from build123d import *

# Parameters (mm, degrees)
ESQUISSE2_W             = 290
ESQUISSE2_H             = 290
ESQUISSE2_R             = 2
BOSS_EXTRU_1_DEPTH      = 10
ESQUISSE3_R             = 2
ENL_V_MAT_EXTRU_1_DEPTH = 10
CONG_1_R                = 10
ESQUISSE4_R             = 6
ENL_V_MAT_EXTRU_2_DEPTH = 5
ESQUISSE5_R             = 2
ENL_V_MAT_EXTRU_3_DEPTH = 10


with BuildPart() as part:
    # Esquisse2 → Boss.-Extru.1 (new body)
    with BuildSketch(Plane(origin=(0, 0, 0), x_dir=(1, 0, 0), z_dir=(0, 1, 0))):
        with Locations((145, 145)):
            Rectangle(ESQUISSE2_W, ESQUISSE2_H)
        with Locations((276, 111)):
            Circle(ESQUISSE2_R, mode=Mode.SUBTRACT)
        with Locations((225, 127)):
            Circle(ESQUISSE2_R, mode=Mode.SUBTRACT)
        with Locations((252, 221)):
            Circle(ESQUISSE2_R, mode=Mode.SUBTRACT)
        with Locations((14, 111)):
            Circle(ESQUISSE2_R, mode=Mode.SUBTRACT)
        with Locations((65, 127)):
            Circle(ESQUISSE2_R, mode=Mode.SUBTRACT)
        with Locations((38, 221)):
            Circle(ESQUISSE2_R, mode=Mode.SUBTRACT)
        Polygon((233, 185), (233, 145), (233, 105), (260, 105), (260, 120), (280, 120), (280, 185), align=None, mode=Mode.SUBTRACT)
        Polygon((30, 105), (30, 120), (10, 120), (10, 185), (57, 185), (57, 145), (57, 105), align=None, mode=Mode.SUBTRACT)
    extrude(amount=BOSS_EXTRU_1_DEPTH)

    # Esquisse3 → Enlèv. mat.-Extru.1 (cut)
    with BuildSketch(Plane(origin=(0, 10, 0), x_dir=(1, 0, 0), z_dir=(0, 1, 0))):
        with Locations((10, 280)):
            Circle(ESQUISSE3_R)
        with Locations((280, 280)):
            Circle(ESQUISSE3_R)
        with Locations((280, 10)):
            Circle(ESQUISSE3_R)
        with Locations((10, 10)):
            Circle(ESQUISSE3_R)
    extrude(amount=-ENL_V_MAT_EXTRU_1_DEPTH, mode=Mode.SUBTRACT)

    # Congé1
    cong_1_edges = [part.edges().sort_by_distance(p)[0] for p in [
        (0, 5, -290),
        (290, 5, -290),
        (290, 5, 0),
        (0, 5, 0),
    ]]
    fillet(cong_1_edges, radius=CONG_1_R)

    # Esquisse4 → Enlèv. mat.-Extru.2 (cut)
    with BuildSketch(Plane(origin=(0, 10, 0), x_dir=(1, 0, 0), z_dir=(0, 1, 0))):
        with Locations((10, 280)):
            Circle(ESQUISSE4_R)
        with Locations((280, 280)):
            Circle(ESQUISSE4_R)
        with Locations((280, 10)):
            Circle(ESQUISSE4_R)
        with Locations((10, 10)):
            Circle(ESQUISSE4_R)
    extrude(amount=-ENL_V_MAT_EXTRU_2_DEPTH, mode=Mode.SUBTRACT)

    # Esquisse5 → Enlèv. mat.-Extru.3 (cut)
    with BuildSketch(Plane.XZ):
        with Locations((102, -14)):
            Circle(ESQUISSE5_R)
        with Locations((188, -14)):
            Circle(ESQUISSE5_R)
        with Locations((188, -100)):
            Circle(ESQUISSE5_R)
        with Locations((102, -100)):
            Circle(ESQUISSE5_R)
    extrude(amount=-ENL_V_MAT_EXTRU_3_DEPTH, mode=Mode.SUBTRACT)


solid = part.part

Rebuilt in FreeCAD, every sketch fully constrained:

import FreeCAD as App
import Part
import Sketcher

V = App.Vector


def edges_at(feature, points):
    """Names of the edges that pass closest to the given points."""
    edges = feature.Shape.Edges
    near = lambda p: min(range(len(edges)), key=lambda i: edges[i].distToShape(Part.Vertex(*p))[0])
    return sorted({f"Edge{near(p) + 1}" for p in points})

doc = App.newDocument("Part")
body = doc.addObject("PartDesign::Body", "Body")

# Sketch on XZ plane
sketch1 = doc.addObject("Sketcher::SketchObject", "Sketch")
body.addObject(sketch1)
sketch1.AttachmentSupport = (doc.XZ_Plane, [""])
sketch1.MapMode = "FlatFace"
sketch1.addGeometry(Part.LineSegment(V(0, -290, 0), V(0, 0, 0)), False)
sketch1.addGeometry(Part.LineSegment(V(0, 0, 0), V(290, 0, 0)), False)
sketch1.addGeometry(Part.LineSegment(V(290, 0, 0), V(290, -290, 0)), False)
sketch1.addGeometry(Part.LineSegment(V(290, -290, 0), V(0, -290, 0)), False)
sketch1.addGeometry(Part.Circle(V(14, -111, 0), V(0, 0, 1), 2), False)
sketch1.addGeometry(Part.Circle(V(65, -127, 0), V(0, 0, 1), 2), False)
sketch1.addGeometry(Part.LineSegment(V(57, -105, 0), V(30, -105, 0)), False)
sketch1.addGeometry(Part.LineSegment(V(30, -105, 0), V(30, -120, 0)), False)
sketch1.addGeometry(Part.LineSegment(V(30, -120, 0), V(10, -120, 0)), False)
sketch1.addGeometry(Part.LineSegment(V(10, -120, 0), V(10, -185, 0)), False)
sketch1.addGeometry(Part.LineSegment(V(10, -185, 0), V(57, -185, 0)), False)
sketch1.addGeometry(Part.LineSegment(V(57, -185, 0), V(57, -105, 0)), False)
sketch1.addGeometry(Part.Circle(V(276, -111, 0), V(0, 0, 1), 2), False)
sketch1.addGeometry(Part.Circle(V(225, -127, 0), V(0, 0, 1), 2), False)
sketch1.addGeometry(Part.LineSegment(V(233, -105, 0), V(233, -185, 0)), False)
sketch1.addGeometry(Part.LineSegment(V(233, -185, 0), V(280, -185, 0)), False)
sketch1.addGeometry(Part.LineSegment(V(280, -185, 0), V(280, -120, 0)), False)
sketch1.addGeometry(Part.LineSegment(V(280, -120, 0), V(260, -120, 0)), False)
sketch1.addGeometry(Part.LineSegment(V(260, -120, 0), V(260, -105, 0)), False)
sketch1.addGeometry(Part.LineSegment(V(260, -105, 0), V(233, -105, 0)), False)
sketch1.addGeometry(Part.Circle(V(38, -221, 0), V(0, 0, 1), 2), False)
sketch1.addGeometry(Part.Circle(V(252, -221, 0), V(0, 0, 1), 2), False)
sketch1.addConstraint(Sketcher.Constraint("Coincident", 0, 2, 1, 1))
sketch1.addConstraint(Sketcher.Constraint("Coincident", 1, 2, 2, 1))
sketch1.addConstraint(Sketcher.Constraint("Coincident", 2, 2, 3, 1))
sketch1.addConstraint(Sketcher.Constraint("Coincident", 3, 2, 0, 1))
sketch1.addConstraint(Sketcher.Constraint("Coincident", 6, 2, 7, 1))
sketch1.addConstraint(Sketcher.Constraint("Coincident", 7, 2, 8, 1))
sketch1.addConstraint(Sketcher.Constraint("Coincident", 8, 2, 9, 1))
sketch1.addConstraint(Sketcher.Constraint("Coincident", 9, 2, 10, 1))
sketch1.addConstraint(Sketcher.Constraint("Coincident", 10, 2, 11, 1))
sketch1.addConstraint(Sketcher.Constraint("Coincident", 11, 2, 6, 1))
sketch1.addConstraint(Sketcher.Constraint("Coincident", 14, 2, 15, 1))
sketch1.addConstraint(Sketcher.Constraint("Coincident", 15, 2, 16, 1))
sketch1.addConstraint(Sketcher.Constraint("Coincident", 16, 2, 17, 1))
sketch1.addConstraint(Sketcher.Constraint("Coincident", 17, 2, 18, 1))
sketch1.addConstraint(Sketcher.Constraint("Coincident", 18, 2, 19, 1))
sketch1.addConstraint(Sketcher.Constraint("Coincident", 19, 2, 14, 1))
sketch1.addConstraint(Sketcher.Constraint("Vertical", 0))
sketch1.addConstraint(Sketcher.Constraint("Horizontal", 1))
sketch1.addConstraint(Sketcher.Constraint("Vertical", 2))
sketch1.addConstraint(Sketcher.Constraint("Horizontal", 3))
sketch1.addConstraint(Sketcher.Constraint("Horizontal", 6))
sketch1.addConstraint(Sketcher.Constraint("Vertical", 7))
sketch1.addConstraint(Sketcher.Constraint("Horizontal", 8))
sketch1.addConstraint(Sketcher.Constraint("Vertical", 9))
sketch1.addConstraint(Sketcher.Constraint("Horizontal", 10))
sketch1.addConstraint(Sketcher.Constraint("Vertical", 11))
sketch1.addConstraint(Sketcher.Constraint("Vertical", 14))
sketch1.addConstraint(Sketcher.Constraint("Horizontal", 15))
sketch1.addConstraint(Sketcher.Constraint("Vertical", 16))
sketch1.addConstraint(Sketcher.Constraint("Horizontal", 17))
sketch1.addConstraint(Sketcher.Constraint("Vertical", 18))
sketch1.addConstraint(Sketcher.Constraint("Horizontal", 19))
sketch1.addConstraint(Sketcher.Constraint("Coincident", 0, 2, -1, 1))
sketch1.addConstraint(Sketcher.Constraint("Equal", 4, 5))
sketch1.addConstraint(Sketcher.Constraint("Equal", 5, 12))
sketch1.addConstraint(Sketcher.Constraint("Equal", 12, 13))
sketch1.addConstraint(Sketcher.Constraint("Equal", 13, 20))
sketch1.addConstraint(Sketcher.Constraint("Equal", 20, 21))
sketch1.addConstraint(Sketcher.Constraint("Horizontal", 4, 3, 12, 3))
sketch1.addConstraint(Sketcher.Constraint("Horizontal", 5, 3, 13, 3))
sketch1.addConstraint(Sketcher.Constraint("Horizontal", 20, 3, 21, 3))
sketch1.addConstraint(Sketcher.Constraint("Horizontal", 10, 2, 14, 2))
sketch1.addConstraint(Sketcher.Constraint("Horizontal", 8, 2, 16, 2))
sketch1.addConstraint(Sketcher.Constraint("Horizontal", 11, 2, 18, 2))
sketch1.addConstraint(Sketcher.Constraint("Equal", 10, 15))
sketch1.addConstraint(Sketcher.Constraint("Equal", 8, 17))
sketch1.addConstraint(Sketcher.Constraint("Equal", 3, 0))
sketch1.addConstraint(Sketcher.Constraint("Diameter", 4, 4.0))
sketch1.addConstraint(Sketcher.Constraint("DistanceX", 1, 1, 1, 2, 290.0))
sketch1.addConstraint(Sketcher.Constraint("DistanceX", 6, 2, 6, 1, 27.0))
sketch1.addConstraint(Sketcher.Constraint("DistanceX", 8, 2, 8, 1, 20.0))
sketch1.addConstraint(Sketcher.Constraint("DistanceY", 7, 2, 7, 1, 15.0))
sketch1.addConstraint(Sketcher.Constraint("DistanceY", 9, 2, 9, 1, 65.0))
sketch1.addConstraint(Sketcher.Constraint("DistanceX", -1, 1, 4, 3, 14.0))
sketch1.addConstraint(Sketcher.Constraint("DistanceY", 4, 3, -1, 1, 111.0))
sketch1.addConstraint(Sketcher.Constraint("DistanceX", -1, 1, 5, 3, 65.0))
sketch1.addConstraint(Sketcher.Constraint("DistanceY", 5, 3, -1, 1, 127.0))
sketch1.addConstraint(Sketcher.Constraint("DistanceX", -1, 1, 12, 3, 276.0))
sketch1.addConstraint(Sketcher.Constraint("DistanceX", -1, 1, 13, 3, 225.0))
sketch1.addConstraint(Sketcher.Constraint("DistanceX", -1, 1, 20, 3, 38.0))
sketch1.addConstraint(Sketcher.Constraint("DistanceY", 20, 3, -1, 1, 221.0))
sketch1.addConstraint(Sketcher.Constraint("DistanceX", -1, 1, 21, 3, 252.0))
sketch1.addConstraint(Sketcher.Constraint("DistanceX", -1, 1, 6, 2, 30.0))
sketch1.addConstraint(Sketcher.Constraint("DistanceY", 6, 2, -1, 1, 105.0))
sketch1.addConstraint(Sketcher.Constraint("DistanceX", -1, 1, 14, 2, 233.0))
pad1 = doc.addObject("PartDesign::Pad", "Pad")
body.addObject(pad1)
pad1.Profile = sketch1
pad1.Length = 10
pad1.Reversed = True

# Sketch on XZ plane
sketch2 = doc.addObject("Sketcher::SketchObject", "Sketch001")
body.addObject(sketch2)
sketch2.AttachmentSupport = (doc.XZ_Plane, [""])
sketch2.MapMode = "FlatFace"
sketch2.AttachmentOffset = App.Placement(V(0, 0, -10), App.Rotation())
sketch2.addGeometry(Part.Circle(V(10, -280, 0), V(0, 0, 1), 2), False)
sketch2.addGeometry(Part.Circle(V(280, -280, 0), V(0, 0, 1), 2), False)
sketch2.addGeometry(Part.Circle(V(280, -10, 0), V(0, 0, 1), 2), False)
sketch2.addGeometry(Part.Circle(V(10, -10, 0), V(0, 0, 1), 2), False)
sketch2.addConstraint(Sketcher.Constraint("Equal", 0, 1))
sketch2.addConstraint(Sketcher.Constraint("Equal", 1, 2))
sketch2.addConstraint(Sketcher.Constraint("Equal", 2, 3))
sketch2.addConstraint(Sketcher.Constraint("Horizontal", 0, 3, 1, 3))
sketch2.addConstraint(Sketcher.Constraint("Horizontal", 2, 3, 3, 3))
sketch2.addConstraint(Sketcher.Constraint("Vertical", 1, 3, 2, 3))
sketch2.addConstraint(Sketcher.Constraint("Vertical", 0, 3, 3, 3))
sketch2.addConstraint(Sketcher.Constraint("Diameter", 0, 4.0))
sketch2.addConstraint(Sketcher.Constraint("DistanceX", -1, 1, 0, 3, 10.0))
sketch2.addConstraint(Sketcher.Constraint("DistanceY", 0, 3, -1, 1, 280.0))
sketch2.addConstraint(Sketcher.Constraint("DistanceX", -1, 1, 1, 3, 280.0))
sketch2.addConstraint(Sketcher.Constraint("DistanceY", 2, 3, -1, 1, 10.0))
pocket1 = doc.addObject("PartDesign::Pocket", "Pocket")
body.addObject(pocket1)
pocket1.Profile = sketch2
pocket1.Length = 10
pocket1.Reversed = True
doc.recompute()

fillet = doc.addObject("PartDesign::Fillet", "Fillet")
body.addObject(fillet)
fillet.Base = (pocket1, edges_at(pocket1, [
    (0, 5, -290),
    (290, 5, -290),
    (290, 5, 0),
    (0, 5, 0),
]))
fillet.Radius = 10

# Sketch on XZ plane
sketch3 = doc.addObject("Sketcher::SketchObject", "Sketch002")
body.addObject(sketch3)
sketch3.AttachmentSupport = (doc.XZ_Plane, [""])
sketch3.MapMode = "FlatFace"
sketch3.AttachmentOffset = App.Placement(V(0, 0, -10), App.Rotation())
sketch3.addGeometry(Part.Circle(V(10, -280, 0), V(0, 0, 1), 6), False)
sketch3.addGeometry(Part.Circle(V(280, -280, 0), V(0, 0, 1), 6), False)
sketch3.addGeometry(Part.Circle(V(280, -10, 0), V(0, 0, 1), 6), False)
sketch3.addGeometry(Part.Circle(V(10, -10, 0), V(0, 0, 1), 6), False)
sketch3.addConstraint(Sketcher.Constraint("Equal", 0, 1))
sketch3.addConstraint(Sketcher.Constraint("Equal", 1, 2))
sketch3.addConstraint(Sketcher.Constraint("Equal", 2, 3))
sketch3.addConstraint(Sketcher.Constraint("Horizontal", 0, 3, 1, 3))
sketch3.addConstraint(Sketcher.Constraint("Horizontal", 2, 3, 3, 3))
sketch3.addConstraint(Sketcher.Constraint("Vertical", 1, 3, 2, 3))
sketch3.addConstraint(Sketcher.Constraint("Vertical", 0, 3, 3, 3))
sketch3.addConstraint(Sketcher.Constraint("Diameter", 0, 12.0))
sketch3.addConstraint(Sketcher.Constraint("DistanceX", -1, 1, 0, 3, 10.0))
sketch3.addConstraint(Sketcher.Constraint("DistanceY", 0, 3, -1, 1, 280.0))
sketch3.addConstraint(Sketcher.Constraint("DistanceX", -1, 1, 1, 3, 280.0))
sketch3.addConstraint(Sketcher.Constraint("DistanceY", 2, 3, -1, 1, 10.0))
pocket2 = doc.addObject("PartDesign::Pocket", "Pocket001")
body.addObject(pocket2)
pocket2.Profile = sketch3
pocket2.Length = 5
pocket2.Reversed = True

# Sketch on XZ plane
sketch4 = doc.addObject("Sketcher::SketchObject", "Sketch003")
body.addObject(sketch4)
sketch4.AttachmentSupport = (doc.XZ_Plane, [""])
sketch4.MapMode = "FlatFace"
sketch4.addGeometry(Part.Circle(V(102, -14, 0), V(0, 0, 1), 2), False)
sketch4.addGeometry(Part.Circle(V(188, -14, 0), V(0, 0, 1), 2), False)
sketch4.addGeometry(Part.Circle(V(188, -100, 0), V(0, 0, 1), 2), False)
sketch4.addGeometry(Part.Circle(V(102, -100, 0), V(0, 0, 1), 2), False)
sketch4.addConstraint(Sketcher.Constraint("Equal", 0, 1))
sketch4.addConstraint(Sketcher.Constraint("Equal", 1, 2))
sketch4.addConstraint(Sketcher.Constraint("Equal", 2, 3))
sketch4.addConstraint(Sketcher.Constraint("Horizontal", 0, 3, 1, 3))
sketch4.addConstraint(Sketcher.Constraint("Horizontal", 2, 3, 3, 3))
sketch4.addConstraint(Sketcher.Constraint("Vertical", 1, 3, 2, 3))
sketch4.addConstraint(Sketcher.Constraint("Vertical", 0, 3, 3, 3))
sketch4.addConstraint(Sketcher.Constraint("Diameter", 0, 4.0))
sketch4.addConstraint(Sketcher.Constraint("DistanceX", -1, 1, 0, 3, 102.0))
sketch4.addConstraint(Sketcher.Constraint("DistanceY", 0, 3, -1, 1, 14.0))
sketch4.addConstraint(Sketcher.Constraint("DistanceX", -1, 1, 1, 3, 188.0))
sketch4.addConstraint(Sketcher.Constraint("DistanceY", 2, 3, -1, 1, 100.0))
pocket3 = doc.addObject("PartDesign::Pocket", "Pocket002")
body.addObject(pocket3)
pocket3.Profile = sketch4
pocket3.Length = 10

doc.recompute()
